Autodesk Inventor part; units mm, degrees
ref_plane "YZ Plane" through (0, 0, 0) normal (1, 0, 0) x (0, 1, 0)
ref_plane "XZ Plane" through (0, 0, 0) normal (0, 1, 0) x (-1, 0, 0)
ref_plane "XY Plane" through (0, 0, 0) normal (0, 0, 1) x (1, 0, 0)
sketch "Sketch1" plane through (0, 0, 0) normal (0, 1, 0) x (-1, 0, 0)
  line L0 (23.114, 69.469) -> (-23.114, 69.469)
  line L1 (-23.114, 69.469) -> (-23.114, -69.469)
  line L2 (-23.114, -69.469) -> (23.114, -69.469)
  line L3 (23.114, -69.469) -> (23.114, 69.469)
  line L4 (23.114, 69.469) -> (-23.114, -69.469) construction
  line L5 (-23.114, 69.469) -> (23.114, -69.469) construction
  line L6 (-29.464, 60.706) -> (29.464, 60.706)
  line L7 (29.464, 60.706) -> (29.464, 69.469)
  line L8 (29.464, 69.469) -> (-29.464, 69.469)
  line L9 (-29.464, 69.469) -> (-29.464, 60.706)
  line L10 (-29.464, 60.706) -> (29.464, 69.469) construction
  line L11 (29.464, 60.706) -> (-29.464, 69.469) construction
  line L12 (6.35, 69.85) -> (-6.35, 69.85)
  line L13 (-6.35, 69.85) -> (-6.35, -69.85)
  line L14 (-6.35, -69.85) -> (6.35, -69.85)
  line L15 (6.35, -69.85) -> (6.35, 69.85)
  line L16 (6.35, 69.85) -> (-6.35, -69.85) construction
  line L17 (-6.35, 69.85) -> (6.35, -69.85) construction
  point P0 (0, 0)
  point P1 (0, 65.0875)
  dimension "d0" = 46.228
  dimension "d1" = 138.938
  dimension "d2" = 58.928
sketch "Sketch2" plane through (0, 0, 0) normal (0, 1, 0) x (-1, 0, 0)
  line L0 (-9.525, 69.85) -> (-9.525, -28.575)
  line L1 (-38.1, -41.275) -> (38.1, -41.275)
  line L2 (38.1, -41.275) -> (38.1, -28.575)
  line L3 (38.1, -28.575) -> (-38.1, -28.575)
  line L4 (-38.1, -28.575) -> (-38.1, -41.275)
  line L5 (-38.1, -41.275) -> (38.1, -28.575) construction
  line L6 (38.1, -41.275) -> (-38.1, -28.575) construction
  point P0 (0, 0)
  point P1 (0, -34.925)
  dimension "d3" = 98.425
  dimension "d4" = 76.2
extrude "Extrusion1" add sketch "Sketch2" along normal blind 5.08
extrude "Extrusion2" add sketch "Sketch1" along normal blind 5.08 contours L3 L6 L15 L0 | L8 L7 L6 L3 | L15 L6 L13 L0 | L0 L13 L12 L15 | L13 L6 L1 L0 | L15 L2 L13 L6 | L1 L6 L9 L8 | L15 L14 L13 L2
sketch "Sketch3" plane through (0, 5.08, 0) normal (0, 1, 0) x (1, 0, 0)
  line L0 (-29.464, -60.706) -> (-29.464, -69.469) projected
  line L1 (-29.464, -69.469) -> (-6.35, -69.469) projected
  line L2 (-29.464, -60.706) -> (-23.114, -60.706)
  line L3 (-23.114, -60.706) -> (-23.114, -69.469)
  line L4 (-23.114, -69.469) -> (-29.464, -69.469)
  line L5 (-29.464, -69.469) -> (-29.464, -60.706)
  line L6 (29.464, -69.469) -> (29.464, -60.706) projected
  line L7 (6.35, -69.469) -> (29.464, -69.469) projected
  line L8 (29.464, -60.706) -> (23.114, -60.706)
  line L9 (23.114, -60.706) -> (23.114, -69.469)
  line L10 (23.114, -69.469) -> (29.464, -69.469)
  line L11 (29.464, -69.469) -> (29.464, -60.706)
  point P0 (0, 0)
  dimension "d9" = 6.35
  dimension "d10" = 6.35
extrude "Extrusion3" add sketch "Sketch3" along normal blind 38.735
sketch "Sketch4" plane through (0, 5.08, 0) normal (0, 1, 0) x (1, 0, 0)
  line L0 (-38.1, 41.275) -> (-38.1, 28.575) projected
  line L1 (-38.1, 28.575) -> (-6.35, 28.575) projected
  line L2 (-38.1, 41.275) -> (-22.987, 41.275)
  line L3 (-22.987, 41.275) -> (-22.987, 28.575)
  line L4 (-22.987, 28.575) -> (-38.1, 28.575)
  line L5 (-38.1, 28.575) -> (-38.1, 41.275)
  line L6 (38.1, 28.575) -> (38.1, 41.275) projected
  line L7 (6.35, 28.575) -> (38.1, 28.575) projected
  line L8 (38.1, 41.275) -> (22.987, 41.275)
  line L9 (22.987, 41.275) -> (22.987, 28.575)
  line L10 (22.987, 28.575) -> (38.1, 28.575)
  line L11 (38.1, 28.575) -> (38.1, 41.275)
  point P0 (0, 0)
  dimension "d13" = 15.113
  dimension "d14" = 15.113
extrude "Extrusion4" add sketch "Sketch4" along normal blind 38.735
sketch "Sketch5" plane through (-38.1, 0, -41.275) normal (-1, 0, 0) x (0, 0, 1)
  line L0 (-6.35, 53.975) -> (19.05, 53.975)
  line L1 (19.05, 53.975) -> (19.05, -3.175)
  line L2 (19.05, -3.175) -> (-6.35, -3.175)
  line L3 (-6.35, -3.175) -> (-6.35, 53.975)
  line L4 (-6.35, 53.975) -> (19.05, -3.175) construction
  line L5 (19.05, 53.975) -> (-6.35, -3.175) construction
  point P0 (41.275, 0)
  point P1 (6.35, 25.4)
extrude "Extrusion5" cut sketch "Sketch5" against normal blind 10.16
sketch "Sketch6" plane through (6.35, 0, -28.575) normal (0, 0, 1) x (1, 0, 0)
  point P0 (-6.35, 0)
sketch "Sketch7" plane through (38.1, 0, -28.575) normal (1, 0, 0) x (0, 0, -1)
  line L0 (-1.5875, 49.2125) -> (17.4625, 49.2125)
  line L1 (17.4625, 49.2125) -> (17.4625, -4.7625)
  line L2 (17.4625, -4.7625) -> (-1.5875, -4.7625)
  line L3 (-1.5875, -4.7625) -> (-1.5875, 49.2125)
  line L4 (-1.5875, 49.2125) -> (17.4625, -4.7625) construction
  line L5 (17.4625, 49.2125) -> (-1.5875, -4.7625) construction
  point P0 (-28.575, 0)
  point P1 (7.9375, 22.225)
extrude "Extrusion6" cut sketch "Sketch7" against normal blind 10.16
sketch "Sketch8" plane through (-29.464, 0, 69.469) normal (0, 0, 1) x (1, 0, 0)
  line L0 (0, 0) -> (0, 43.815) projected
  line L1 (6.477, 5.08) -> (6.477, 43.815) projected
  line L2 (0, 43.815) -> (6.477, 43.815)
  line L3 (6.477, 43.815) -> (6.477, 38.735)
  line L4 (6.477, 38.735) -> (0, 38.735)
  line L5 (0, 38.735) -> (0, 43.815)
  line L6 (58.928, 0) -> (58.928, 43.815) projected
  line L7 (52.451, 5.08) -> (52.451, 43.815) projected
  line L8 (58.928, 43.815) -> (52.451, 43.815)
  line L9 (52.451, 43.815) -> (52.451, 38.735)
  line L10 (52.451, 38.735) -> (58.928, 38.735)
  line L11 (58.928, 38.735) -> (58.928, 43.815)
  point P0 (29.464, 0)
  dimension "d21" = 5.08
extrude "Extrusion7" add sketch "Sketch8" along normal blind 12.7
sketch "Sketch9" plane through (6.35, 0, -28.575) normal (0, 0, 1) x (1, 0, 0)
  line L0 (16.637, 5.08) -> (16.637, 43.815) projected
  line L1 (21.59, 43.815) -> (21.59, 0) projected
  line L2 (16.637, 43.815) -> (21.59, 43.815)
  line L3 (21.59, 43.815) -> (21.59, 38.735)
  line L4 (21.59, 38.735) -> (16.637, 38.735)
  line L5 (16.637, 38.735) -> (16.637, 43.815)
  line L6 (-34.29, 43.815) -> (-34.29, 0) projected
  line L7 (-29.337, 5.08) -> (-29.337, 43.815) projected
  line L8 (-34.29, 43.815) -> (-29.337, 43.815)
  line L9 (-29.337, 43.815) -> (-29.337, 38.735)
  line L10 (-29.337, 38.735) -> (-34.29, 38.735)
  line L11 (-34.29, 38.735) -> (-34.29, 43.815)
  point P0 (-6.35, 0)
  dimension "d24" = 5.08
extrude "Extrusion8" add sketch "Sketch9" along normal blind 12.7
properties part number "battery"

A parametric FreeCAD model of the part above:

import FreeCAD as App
import Part
import Sketcher
Q = App.Units.Quantity

doc = App.newDocument("Part")
body = doc.addObject("PartDesign::Body", "Body")

# Sketch on XZ plane
sketch1 = doc.addObject("Sketcher::SketchObject", "Sketch")
body.addObject(sketch1)
sketch1.AttachmentSupport = (doc.XZ_Plane, [""])
sketch1.MapMode = "FlatFace"
sketch1.addGeometry(Part.LineSegment(App.Vector(38, -29, 0), App.Vector(38, -41, 0)), False)
sketch1.addGeometry(Part.LineSegment(App.Vector(38, -41, 0), App.Vector(-38, -41, 0)), False)
sketch1.addGeometry(Part.LineSegment(App.Vector(-38, -41, 0), App.Vector(-38, -29, 0)), False)
sketch1.addGeometry(Part.LineSegment(App.Vector(-38, -29, 0), App.Vector(38, -29, 0)), False)
sketch1.addConstraint(Sketcher.Constraint("Coincident", 0, 2, 1, 1))
sketch1.addConstraint(Sketcher.Constraint("Coincident", 1, 2, 2, 1))
sketch1.addConstraint(Sketcher.Constraint("Coincident", 2, 2, 3, 1))
sketch1.addConstraint(Sketcher.Constraint("Coincident", 3, 2, 0, 1))
sketch1.addConstraint(Sketcher.Constraint("Vertical", 0))
sketch1.addConstraint(Sketcher.Constraint("Horizontal", 1))
sketch1.addConstraint(Sketcher.Constraint("Vertical", 2))
sketch1.addConstraint(Sketcher.Constraint("Horizontal", 3))
sketch1.addConstraint(Sketcher.Constraint("DistanceX", 1, 2, 1, 1, Q("3 in")))
sketch1.addConstraint(Sketcher.Constraint("DistanceY", 0, 2, 0, 1, Q("0.5 in")))
sketch1.addConstraint(Sketcher.Constraint("DistanceX", -1, 1, 0, 2, Q("1.5 in")))
sketch1.addConstraint(Sketcher.Constraint("DistanceY", 0, 2, -1, 1, Q("1.625 in")))
pad1 = doc.addObject("PartDesign::Pad", "Pad")
body.addObject(pad1)
pad1.Profile = sketch1
pad1.Length = Q("0.2 in")
pad1.Reversed = True

# Sketch on XZ plane
sketch2 = doc.addObject("Sketcher::SketchObject", "Sketch001")
body.addObject(sketch2)
sketch2.AttachmentSupport = (doc.XZ_Plane, [""])
sketch2.MapMode = "FlatFace"
sketch2.addGeometry(Part.LineSegment(App.Vector(-6.35, 60.71, 0), App.Vector(-29.46, 60.71, 0)), False)
sketch2.addGeometry(Part.LineSegment(App.Vector(-29.46, 60.71, 0), App.Vector(-29.46, 69.47, 0)), False)
sketch2.addGeometry(Part.LineSegment(App.Vector(-29.46, 69.47, 0), App.Vector(-6.35, 69.47, 0)), False)
sketch2.addGeometry(Part.LineSegment(App.Vector(-6.35, 69.47, 0), App.Vector(-6.35, 69.85, 0)), False)
sketch2.addGeometry(Part.LineSegment(App.Vector(-6.35, 69.85, 0), App.Vector(6.35, 69.85, 0)), False)
sketch2.addGeometry(Part.LineSegment(App.Vector(6.35, 69.85, 0), App.Vector(6.35, 69.47, 0)), False)
sketch2.addGeometry(Part.LineSegment(App.Vector(6.35, 69.47, 0), App.Vector(29.46, 69.47, 0)), False)
sketch2.addGeometry(Part.LineSegment(App.Vector(29.46, 69.47, 0), App.Vector(29.46, 60.71, 0)), False)
sketch2.addGeometry(Part.LineSegment(App.Vector(29.46, 60.71, 0), App.Vector(6.35, 60.71, 0)), False)
sketch2.addGeometry(Part.LineSegment(App.Vector(6.35, 60.71, 0), App.Vector(6.35, -69.85, 0)), False)
sketch2.addGeometry(Part.LineSegment(App.Vector(6.35, -69.85, 0), App.Vector(-6.35, -69.85, 0)), False)
sketch2.addGeometry(Part.LineSegment(App.Vector(-6.35, -69.85, 0), App.Vector(-6.35, 60.71, 0)), False)
sketch2.addConstraint(Sketcher.Constraint("Coincident", 0, 2, 1, 1))
sketch2.addConstraint(Sketcher.Constraint("Coincident", 1, 2, 2, 1))
sketch2.addConstraint(Sketcher.Constraint("Coincident", 2, 2, 3, 1))
sketch2.addConstraint(Sketcher.Constraint("Coincident", 3, 2, 4, 1))
sketch2.addConstraint(Sketcher.Constraint("Coincident", 4, 2, 5, 1))
sketch2.addConstraint(Sketcher.Constraint("Coincident", 5, 2, 6, 1))
sketch2.addConstraint(Sketcher.Constraint("Coincident", 6, 2, 7, 1))
sketch2.addConstraint(Sketcher.Constraint("Coincident", 7, 2, 8, 1))
sketch2.addConstraint(Sketcher.Constraint("Coincident", 8, 2, 9, 1))
sketch2.addConstraint(Sketcher.Constraint("Coincident", 9, 2, 10, 1))
sketch2.addConstraint(Sketcher.Constraint("Coincident", 10, 2, 11, 1))
sketch2.addConstraint(Sketcher.Constraint("Coincident", 11, 2, 0, 1))
sketch2.addConstraint(Sketcher.Constraint("Horizontal", 0))
sketch2.addConstraint(Sketcher.Constraint("Vertical", 1))
sketch2.addConstraint(Sketcher.Constraint("Horizontal", 2))
sketch2.addConstraint(Sketcher.Constraint("Vertical", 3))
sketch2.addConstraint(Sketcher.Constraint("Horizontal", 4))
sketch2.addConstraint(Sketcher.Constraint("Vertical", 5))
sketch2.addConstraint(Sketcher.Constraint("Horizontal", 6))
sketch2.addConstraint(Sketcher.Constraint("Vertical", 7))
sketch2.addConstraint(Sketcher.Constraint("Horizontal", 8))
sketch2.addConstraint(Sketcher.Constraint("Vertical", 9))
sketch2.addConstraint(Sketcher.Constraint("Horizontal", 10))
sketch2.addConstraint(Sketcher.Constraint("Vertical", 11))
sketch2.addConstraint(Sketcher.Constraint("Symmetric", 3, 2, 9, 2, -1, 1))
sketch2.addConstraint(Sketcher.Constraint("Symmetric", 2, 2, 5, 2, -2))
sketch2.addConstraint(Sketcher.Constraint("Symmetric", 0, 2, 7, 2, -2))
sketch2.addConstraint(Sketcher.Constraint("Vertical", 3, 2, 10, 2))
sketch2.addConstraint(Sketcher.Constraint("DistanceX", 1, 2, 6, 2, Q("2.32 in")))
sketch2.addConstraint(Sketcher.Constraint("DistanceX", 4, 1, 4, 2, Q("0.5 in")))
sketch2.addConstraint(Sketcher.Constraint("DistanceY", 9, 2, 9, 1, Q("5.14 in")))
sketch2.addConstraint(Sketcher.Constraint("DistanceY", 9, 2, 4, 2, Q("5.5 in")))
sketch2.addConstraint(Sketcher.Constraint("DistanceY", 1, 1, 1, 2, Q("0.345 in")))
pad2 = doc.addObject("PartDesign::Pad", "Pad001")
body.addObject(pad2)
pad2.Profile = sketch2
pad2.Length = Q("0.2 in")
pad2.Reversed = True

# Sketch on XZ plane
sketch3 = doc.addObject("Sketcher::SketchObject", "Sketch002")
body.addObject(sketch3)
sketch3.AttachmentSupport = (doc.XZ_Plane, [""])
sketch3.MapMode = "FlatFace"
sketch3.AttachmentOffset = App.Placement(App.Vector(0, 0, -0.2 * 25.4), App.Rotation())
sketch3.addGeometry(Part.LineSegment(App.Vector(-23, 61, 0), App.Vector(-29, 61, 0)), False)
sketch3.addGeometry(Part.LineSegment(App.Vector(-29, 61, 0), App.Vector(-29, 69, 0)), False)
sketch3.addGeometry(Part.LineSegment(App.Vector(-29, 69, 0), App.Vector(-23, 69, 0)), False)
sketch3.addGeometry(Part.LineSegment(App.Vector(-23, 69, 0), App.Vector(-23, 61, 0)), False)
sketch3.addGeometry(Part.LineSegment(App.Vector(23, 69, 0), App.Vector(29, 69, 0)), False)
sketch3.addGeometry(Part.LineSegment(App.Vector(29, 69, 0), App.Vector(29, 61, 0)), False)
sketch3.addGeometry(Part.LineSegment(App.Vector(29, 61, 0), App.Vector(23, 61, 0)), False)
sketch3.addGeometry(Part.LineSegment(App.Vector(23, 61, 0), App.Vector(23, 69, 0)), False)
sketch3.addConstraint(Sketcher.Constraint("Coincident", 0, 2, 1, 1))
sketch3.addConstraint(Sketcher.Constraint("Coincident", 1, 2, 2, 1))
sketch3.addConstraint(Sketcher.Constraint("Coincident", 2, 2, 3, 1))
sketch3.addConstraint(Sketcher.Constraint("Coincident", 3, 2, 0, 1))
sketch3.addConstraint(Sketcher.Constraint("Coincident", 4, 2, 5, 1))
sketch3.addConstraint(Sketcher.Constraint("Coincident", 5, 2, 6, 1))
sketch3.addConstraint(Sketcher.Constraint("Coincident", 6, 2, 7, 1))
sketch3.addConstraint(Sketcher.Constraint("Coincident", 7, 2, 4, 1))
sketch3.addConstraint(Sketcher.Constraint("Horizontal", 0))
sketch3.addConstraint(Sketcher.Constraint("Vertical", 1))
sketch3.addConstraint(Sketcher.Constraint("Horizontal", 2))
sketch3.addConstraint(Sketcher.Constraint("Vertical", 3))
sketch3.addConstraint(Sketcher.Constraint("Horizontal", 4))
sketch3.addConstraint(Sketcher.Constraint("Vertical", 5))
sketch3.addConstraint(Sketcher.Constraint("Horizontal", 6))
sketch3.addConstraint(Sketcher.Constraint("Vertical", 7))
sketch3.addConstraint(Sketcher.Constraint("Symmetric", 1, 2, 4, 2, -2))
sketch3.addConstraint(Sketcher.Constraint("Symmetric", 3, 2, 6, 2, -2))
sketch3.addConstraint(Sketcher.Constraint("DistanceX", 0, 2, 0, 1, Q("0.25 in")))
sketch3.addConstraint(Sketcher.Constraint("DistanceY", 1, 1, 1, 2, Q("0.345 in")))
sketch3.addConstraint(Sketcher.Constraint("DistanceX", 0, 2, -1, 1, Q("1.16 in")))
sketch3.addConstraint(Sketcher.Constraint("DistanceY", -1, 1, 0, 2, Q("2.39 in")))
pad3 = doc.addObject("PartDesign::Pad", "Pad002")
body.addObject(pad3)
pad3.Profile = sketch3
pad3.Length = Q("1.525 in")
pad3.Reversed = True

# Sketch on XZ plane
sketch4 = doc.addObject("Sketcher::SketchObject", "Sketch003")
body.addObject(sketch4)
sketch4.AttachmentSupport = (doc.XZ_Plane, [""])
sketch4.MapMode = "FlatFace"
sketch4.AttachmentOffset = App.Placement(App.Vector(0, 0, -0.2 * 25.4), App.Rotation())
sketch4.addGeometry(Part.LineSegment(App.Vector(-23, -41, 0), App.Vector(-38, -41, 0)), False)
sketch4.addGeometry(Part.LineSegment(App.Vector(-38, -41, 0), App.Vector(-38, -29, 0)), False)
sketch4.addGeometry(Part.LineSegment(App.Vector(-38, -29, 0), App.Vector(-23, -29, 0)), False)
sketch4.addGeometry(Part.LineSegment(App.Vector(-23, -29, 0), App.Vector(-23, -41, 0)), False)
sketch4.addGeometry(Part.LineSegment(App.Vector(23, -29, 0), App.Vector(38, -29, 0)), False)
sketch4.addGeometry(Part.LineSegment(App.Vector(38, -29, 0), App.Vector(38, -41, 0)), False)
sketch4.addGeometry(Part.LineSegment(App.Vector(38, -41, 0), App.Vector(23, -41, 0)), False)
sketch4.addGeometry(Part.LineSegment(App.Vector(23, -41, 0), App.Vector(23, -29, 0)), False)
sketch4.addConstraint(Sketcher.Constraint("Coincident", 0, 2, 1, 1))
sketch4.addConstraint(Sketcher.Constraint("Coincident", 1, 2, 2, 1))
sketch4.addConstraint(Sketcher.Constraint("Coincident", 2, 2, 3, 1))
sketch4.addConstraint(Sketcher.Constraint("Coincident", 3, 2, 0, 1))
sketch4.addConstraint(Sketcher.Constraint("Coincident", 4, 2, 5, 1))
sketch4.addConstraint(Sketcher.Constraint("Coincident", 5, 2, 6, 1))
sketch4.addConstraint(Sketcher.Constraint("Coincident", 6, 2, 7, 1))
sketch4.addConstraint(Sketcher.Constraint("Coincident", 7, 2, 4, 1))
sketch4.addConstraint(Sketcher.Constraint("Horizontal", 0))
sketch4.addConstraint(Sketcher.Constraint("Vertical", 1))
sketch4.addConstraint(Sketcher.Constraint("Horizontal", 2))
sketch4.addConstraint(Sketcher.Constraint("Vertical", 3))
sketch4.addConstraint(Sketcher.Constraint("Horizontal", 4))
sketch4.addConstraint(Sketcher.Constraint("Vertical", 5))
sketch4.addConstraint(Sketcher.Constraint("Horizontal", 6))
sketch4.addConstraint(Sketcher.Constraint("Vertical", 7))
sketch4.addConstraint(Sketcher.Constraint("Symmetric", 1, 2, 4, 2, -2))
sketch4.addConstraint(Sketcher.Constraint("Symmetric", 3, 2, 6, 2, -2))
sketch4.addConstraint(Sketcher.Constraint("DistanceX", 0, 2, 0, 1, Q("0.595 in")))
sketch4.addConstraint(Sketcher.Constraint("DistanceY", 1, 1, 1, 2, Q("0.5 in")))
sketch4.addConstraint(Sketcher.Constraint("DistanceX", 1, 2, 4, 2, Q("3 in")))
sketch4.addConstraint(Sketcher.Constraint("DistanceY", 0, 2, -1, 1, Q("1.625 in")))
pad4 = doc.addObject("PartDesign::Pad", "Pad003")
body.addObject(pad4)
pad4.Profile = sketch4
pad4.Length = Q("1.525 in")
pad4.Reversed = True

# Sketch on YZ plane
sketch5 = doc.addObject("Sketcher::SketchObject", "Sketch004")
body.addObject(sketch5)
sketch5.AttachmentSupport = (doc.YZ_Plane, [""])
sketch5.MapMode = "FlatFace"
sketch5.AttachmentOffset = App.Placement(App.Vector(0, 0, -1.5 * 25.4), App.Rotation())
sketch5.addGeometry(Part.LineSegment(App.Vector(54, -22, 0), App.Vector(54, -48, 0)), False)
sketch5.addGeometry(Part.LineSegment(App.Vector(54, -48, 0), App.Vector(-3, -48, 0)), False)
sketch5.addGeometry(Part.LineSegment(App.Vector(-3, -48, 0), App.Vector(-3, -22, 0)), False)
sketch5.addGeometry(Part.LineSegment(App.Vector(-3, -22, 0), App.Vector(54, -22, 0)), False)
sketch5.addConstraint(Sketcher.Constraint("Coincident", 0, 2, 1, 1))
sketch5.addConstraint(Sketcher.Constraint("Coincident", 1, 2, 2, 1))
sketch5.addConstraint(Sketcher.Constraint("Coincident", 2, 2, 3, 1))
sketch5.addConstraint(Sketcher.Constraint("Coincident", 3, 2, 0, 1))
sketch5.addConstraint(Sketcher.Constraint("Vertical", 0))
sketch5.addConstraint(Sketcher.Constraint("Horizontal", 1))
sketch5.addConstraint(Sketcher.Constraint("Vertical", 2))
sketch5.addConstraint(Sketcher.Constraint("Horizontal", 3))
sketch5.addConstraint(Sketcher.Constraint("DistanceY", 0, 2, 0, 1, Q("1 in")))
sketch5.addConstraint(Sketcher.Constraint("DistanceX", 1, 2, 1, 1, Q("2.25 in")))
sketch5.addConstraint(Sketcher.Constraint("DistanceX", -1, 1, 0, 2, Q("2.125 in")))
sketch5.addConstraint(Sketcher.Constraint("DistanceY", 0, 2, -1, 1, Q("1.875 in")))
pocket1 = doc.addObject("PartDesign::Pocket", "Pocket")
body.addObject(pocket1)
pocket1.Profile = sketch5
pocket1.Length = Q("0.4 in")
pocket1.Reversed = True

# Sketch on YZ plane
sketch6 = doc.addObject("Sketcher::SketchObject", "Sketch005")
body.addObject(sketch6)
sketch6.AttachmentSupport = (doc.YZ_Plane, [""])
sketch6.MapMode = "FlatFace"
sketch6.AttachmentOffset = App.Placement(App.Vector(0, 0, 1.5 * 25.4), App.Rotation())
sketch6.addGeometry(Part.LineSegment(App.Vector(49, -46, 0), App.Vector(49, -27, 0)), False)
sketch6.addGeometry(Part.LineSegment(App.Vector(49, -27, 0), App.Vector(-5, -27, 0)), False)
sketch6.addGeometry(Part.LineSegment(App.Vector(-5, -27, 0), App.Vector(-5, -46, 0)), False)
sketch6.addGeometry(Part.LineSegment(App.Vector(-5, -46, 0), App.Vector(49, -46, 0)), False)
sketch6.addConstraint(Sketcher.Constraint("Coincident", 0, 2, 1, 1))
sketch6.addConstraint(Sketcher.Constraint("Coincident", 1, 2, 2, 1))
sketch6.addConstraint(Sketcher.Constraint("Coincident", 2, 2, 3, 1))
sketch6.addConstraint(Sketcher.Constraint("Coincident", 3, 2, 0, 1))
sketch6.addConstraint(Sketcher.Constraint("Vertical", 0))
sketch6.addConstraint(Sketcher.Constraint("Horizontal", 1))
sketch6.addConstraint(Sketcher.Constraint("Vertical", 2))
sketch6.addConstraint(Sketcher.Constraint("Horizontal", 3))
sketch6.addConstraint(Sketcher.Constraint("DistanceY", 0, 1, 0, 2, Q("0.75 in")))
sketch6.addConstraint(Sketcher.Constraint("DistanceX", 1, 2, 1, 1, Q("2.125 in")))
sketch6.addConstraint(Sketcher.Constraint("DistanceX", -1, 1, 0, 2, Q("1.9375 in")))
sketch6.addConstraint(Sketcher.Constraint("DistanceY", 0, 2, -1, 1, Q("1.0625 in")))
pocket2 = doc.addObject("PartDesign::Pocket", "Pocket001")
body.addObject(pocket2)
pocket2.Profile = sketch6
pocket2.Length = Q("0.4 in")

# Sketch on XY plane
sketch7 = doc.addObject("Sketcher::SketchObject", "Sketch006")
body.addObject(sketch7)
sketch7.AttachmentSupport = (doc.XY_Plane, [""])
sketch7.MapMode = "FlatFace"
sketch7.AttachmentOffset = App.Placement(App.Vector(0, 0, 2.735 * 25.4), App.Rotation())
sketch7.addGeometry(Part.LineSegment(App.Vector(-29, 44, 0), App.Vector(-29, 39, 0)), False)
sketch7.addGeometry(Part.LineSegment(App.Vector(-29, 39, 0), App.Vector(-23, 39, 0)), False)
sketch7.addGeometry(Part.LineSegment(App.Vector(-23, 39, 0), App.Vector(-23, 44, 0)), False)
sketch7.addGeometry(Part.LineSegment(App.Vector(-23, 44, 0), App.Vector(-29, 44, 0)), False)
sketch7.addGeometry(Part.LineSegment(App.Vector(23, 39, 0), App.Vector(29, 39, 0)), False)
sketch7.addGeometry(Part.LineSegment(App.Vector(29, 39, 0), App.Vector(29, 44, 0)), False)
sketch7.addGeometry(Part.LineSegment(App.Vector(29, 44, 0), App.Vector(23, 44, 0)), False)
sketch7.addGeometry(Part.LineSegment(App.Vector(23, 44, 0), App.Vector(23, 39, 0)), False)
sketch7.addConstraint(Sketcher.Constraint("Coincident", 0, 2, 1, 1))
sketch7.addConstraint(Sketcher.Constraint("Coincident", 1, 2, 2, 1))
sketch7.addConstraint(Sketcher.Constraint("Coincident", 2, 2, 3, 1))
sketch7.addConstraint(Sketcher.Constraint("Coincident", 3, 2, 0, 1))
sketch7.addConstraint(Sketcher.Constraint("Coincident", 4, 2, 5, 1))
sketch7.addConstraint(Sketcher.Constraint("Coincident", 5, 2, 6, 1))
sketch7.addConstraint(Sketcher.Constraint("Coincident", 6, 2, 7, 1))
sketch7.addConstraint(Sketcher.Constraint("Coincident", 7, 2, 4, 1))
sketch7.addConstraint(Sketcher.Constraint("Vertical", 0))
sketch7.addConstraint(Sketcher.Constraint("Horizontal", 1))
sketch7.addConstraint(Sketcher.Constraint("Vertical", 2))
sketch7.addConstraint(Sketcher.Constraint("Horizontal", 3))
sketch7.addConstraint(Sketcher.Constraint("Horizontal", 4))
sketch7.addConstraint(Sketcher.Constraint("Vertical", 5))
sketch7.addConstraint(Sketcher.Constraint("Horizontal", 6))
sketch7.addConstraint(Sketcher.Constraint("Vertical", 7))
sketch7.addConstraint(Sketcher.Constraint("Symmetric", 0, 2, 4, 2, -2))
sketch7.addConstraint(Sketcher.Constraint("Symmetric", 2, 2, 6, 2, -2))
sketch7.addConstraint(Sketcher.Constraint("DistanceY", 0, 2, 0, 1, Q("0.2 in")))
sketch7.addConstraint(Sketcher.Constraint("DistanceX", 1, 1, 1, 2, Q("0.255 in")))
sketch7.addConstraint(Sketcher.Constraint("DistanceX", 0, 2, -1, 1, Q("1.16 in")))
sketch7.addConstraint(Sketcher.Constraint("DistanceY", -1, 1, 0, 2, Q("1.525 in")))
pad5 = doc.addObject("PartDesign::Pad", "Pad004")
body.addObject(pad5)
pad5.Profile = sketch7
pad5.Length = Q("0.5 in")

# Sketch on XY plane
sketch8 = doc.addObject("Sketcher::SketchObject", "Sketch007")
body.addObject(sketch8)
sketch8.AttachmentSupport = (doc.XY_Plane, [""])
sketch8.MapMode = "FlatFace"
sketch8.AttachmentOffset = App.Placement(App.Vector(0, 0, -1.125 * 25.4), App.Rotation())
sketch8.addGeometry(Part.LineSegment(App.Vector(23, 43.8, 0), App.Vector(23, 38.7, 0)), False)
sketch8.addGeometry(Part.LineSegment(App.Vector(23, 38.7, 0), App.Vector(27.9, 38.7, 0)), False)
sketch8.addGeometry(Part.LineSegment(App.Vector(27.9, 38.7, 0), App.Vector(27.9, 43.8, 0)), False)
sketch8.addGeometry(Part.LineSegment(App.Vector(27.9, 43.8, 0), App.Vector(23, 43.8, 0)), False)
sketch8.addGeometry(Part.LineSegment(App.Vector(-23, 43.8, 0), App.Vector(-27.9, 43.8, 0)), False)
sketch8.addGeometry(Part.LineSegment(App.Vector(-27.9, 43.8, 0), App.Vector(-27.9, 38.7, 0)), False)
sketch8.addGeometry(Part.LineSegment(App.Vector(-27.9, 38.7, 0), App.Vector(-23, 38.7, 0)), False)
sketch8.addGeometry(Part.LineSegment(App.Vector(-23, 38.7, 0), App.Vector(-23, 43.8, 0)), False)
sketch8.addConstraint(Sketcher.Constraint("Coincident", 0, 2, 1, 1))
sketch8.addConstraint(Sketcher.Constraint("Coincident", 1, 2, 2, 1))
sketch8.addConstraint(Sketcher.Constraint("Coincident", 2, 2, 3, 1))
sketch8.addConstraint(Sketcher.Constraint("Coincident", 3, 2, 0, 1))
sketch8.addConstraint(Sketcher.Constraint("Coincident", 4, 2, 5, 1))
sketch8.addConstraint(Sketcher.Constraint("Coincident", 5, 2, 6, 1))
sketch8.addConstraint(Sketcher.Constraint("Coincident", 6, 2, 7, 1))
sketch8.addConstraint(Sketcher.Constraint("Coincident", 7, 2, 4, 1))
sketch8.addConstraint(Sketcher.Constraint("Vertical", 0))
sketch8.addConstraint(Sketcher.Constraint("Horizontal", 1))
sketch8.addConstraint(Sketcher.Constraint("Vertical", 2))
sketch8.addConstraint(Sketcher.Constraint("Horizontal", 3))
sketch8.addConstraint(Sketcher.Constraint("Horizontal", 4))
sketch8.addConstraint(Sketcher.Constraint("Vertical", 5))
sketch8.addConstraint(Sketcher.Constraint("Horizontal", 6))
sketch8.addConstraint(Sketcher.Constraint("Vertical", 7))
sketch8.addConstraint(Sketcher.Constraint("Symmetric", 2, 2, 4, 2, -2))
sketch8.addConstraint(Sketcher.Constraint("Symmetric", 0, 2, 6, 2, -2))
sketch8.addConstraint(Sketcher.Constraint("DistanceY", 0, 2, 0, 1, Q("0.2 in")))
sketch8.addConstraint(Sketcher.Constraint("DistanceX", -1, 1, 1, 2, Q("1.1 in")))
sketch8.addConstraint(Sketcher.Constraint("DistanceX", 1, 1, 1, 2, Q("0.195 in")))
sketch8.addConstraint(Sketcher.Constraint("DistanceY", -1, 1, 0, 2, Q("1.525 in")))
pad6 = doc.addObject("PartDesign::Pad", "Pad005")
body.addObject(pad6)
pad6.Profile = sketch8
pad6.Length = Q("0.5 in")

doc.recompute()
